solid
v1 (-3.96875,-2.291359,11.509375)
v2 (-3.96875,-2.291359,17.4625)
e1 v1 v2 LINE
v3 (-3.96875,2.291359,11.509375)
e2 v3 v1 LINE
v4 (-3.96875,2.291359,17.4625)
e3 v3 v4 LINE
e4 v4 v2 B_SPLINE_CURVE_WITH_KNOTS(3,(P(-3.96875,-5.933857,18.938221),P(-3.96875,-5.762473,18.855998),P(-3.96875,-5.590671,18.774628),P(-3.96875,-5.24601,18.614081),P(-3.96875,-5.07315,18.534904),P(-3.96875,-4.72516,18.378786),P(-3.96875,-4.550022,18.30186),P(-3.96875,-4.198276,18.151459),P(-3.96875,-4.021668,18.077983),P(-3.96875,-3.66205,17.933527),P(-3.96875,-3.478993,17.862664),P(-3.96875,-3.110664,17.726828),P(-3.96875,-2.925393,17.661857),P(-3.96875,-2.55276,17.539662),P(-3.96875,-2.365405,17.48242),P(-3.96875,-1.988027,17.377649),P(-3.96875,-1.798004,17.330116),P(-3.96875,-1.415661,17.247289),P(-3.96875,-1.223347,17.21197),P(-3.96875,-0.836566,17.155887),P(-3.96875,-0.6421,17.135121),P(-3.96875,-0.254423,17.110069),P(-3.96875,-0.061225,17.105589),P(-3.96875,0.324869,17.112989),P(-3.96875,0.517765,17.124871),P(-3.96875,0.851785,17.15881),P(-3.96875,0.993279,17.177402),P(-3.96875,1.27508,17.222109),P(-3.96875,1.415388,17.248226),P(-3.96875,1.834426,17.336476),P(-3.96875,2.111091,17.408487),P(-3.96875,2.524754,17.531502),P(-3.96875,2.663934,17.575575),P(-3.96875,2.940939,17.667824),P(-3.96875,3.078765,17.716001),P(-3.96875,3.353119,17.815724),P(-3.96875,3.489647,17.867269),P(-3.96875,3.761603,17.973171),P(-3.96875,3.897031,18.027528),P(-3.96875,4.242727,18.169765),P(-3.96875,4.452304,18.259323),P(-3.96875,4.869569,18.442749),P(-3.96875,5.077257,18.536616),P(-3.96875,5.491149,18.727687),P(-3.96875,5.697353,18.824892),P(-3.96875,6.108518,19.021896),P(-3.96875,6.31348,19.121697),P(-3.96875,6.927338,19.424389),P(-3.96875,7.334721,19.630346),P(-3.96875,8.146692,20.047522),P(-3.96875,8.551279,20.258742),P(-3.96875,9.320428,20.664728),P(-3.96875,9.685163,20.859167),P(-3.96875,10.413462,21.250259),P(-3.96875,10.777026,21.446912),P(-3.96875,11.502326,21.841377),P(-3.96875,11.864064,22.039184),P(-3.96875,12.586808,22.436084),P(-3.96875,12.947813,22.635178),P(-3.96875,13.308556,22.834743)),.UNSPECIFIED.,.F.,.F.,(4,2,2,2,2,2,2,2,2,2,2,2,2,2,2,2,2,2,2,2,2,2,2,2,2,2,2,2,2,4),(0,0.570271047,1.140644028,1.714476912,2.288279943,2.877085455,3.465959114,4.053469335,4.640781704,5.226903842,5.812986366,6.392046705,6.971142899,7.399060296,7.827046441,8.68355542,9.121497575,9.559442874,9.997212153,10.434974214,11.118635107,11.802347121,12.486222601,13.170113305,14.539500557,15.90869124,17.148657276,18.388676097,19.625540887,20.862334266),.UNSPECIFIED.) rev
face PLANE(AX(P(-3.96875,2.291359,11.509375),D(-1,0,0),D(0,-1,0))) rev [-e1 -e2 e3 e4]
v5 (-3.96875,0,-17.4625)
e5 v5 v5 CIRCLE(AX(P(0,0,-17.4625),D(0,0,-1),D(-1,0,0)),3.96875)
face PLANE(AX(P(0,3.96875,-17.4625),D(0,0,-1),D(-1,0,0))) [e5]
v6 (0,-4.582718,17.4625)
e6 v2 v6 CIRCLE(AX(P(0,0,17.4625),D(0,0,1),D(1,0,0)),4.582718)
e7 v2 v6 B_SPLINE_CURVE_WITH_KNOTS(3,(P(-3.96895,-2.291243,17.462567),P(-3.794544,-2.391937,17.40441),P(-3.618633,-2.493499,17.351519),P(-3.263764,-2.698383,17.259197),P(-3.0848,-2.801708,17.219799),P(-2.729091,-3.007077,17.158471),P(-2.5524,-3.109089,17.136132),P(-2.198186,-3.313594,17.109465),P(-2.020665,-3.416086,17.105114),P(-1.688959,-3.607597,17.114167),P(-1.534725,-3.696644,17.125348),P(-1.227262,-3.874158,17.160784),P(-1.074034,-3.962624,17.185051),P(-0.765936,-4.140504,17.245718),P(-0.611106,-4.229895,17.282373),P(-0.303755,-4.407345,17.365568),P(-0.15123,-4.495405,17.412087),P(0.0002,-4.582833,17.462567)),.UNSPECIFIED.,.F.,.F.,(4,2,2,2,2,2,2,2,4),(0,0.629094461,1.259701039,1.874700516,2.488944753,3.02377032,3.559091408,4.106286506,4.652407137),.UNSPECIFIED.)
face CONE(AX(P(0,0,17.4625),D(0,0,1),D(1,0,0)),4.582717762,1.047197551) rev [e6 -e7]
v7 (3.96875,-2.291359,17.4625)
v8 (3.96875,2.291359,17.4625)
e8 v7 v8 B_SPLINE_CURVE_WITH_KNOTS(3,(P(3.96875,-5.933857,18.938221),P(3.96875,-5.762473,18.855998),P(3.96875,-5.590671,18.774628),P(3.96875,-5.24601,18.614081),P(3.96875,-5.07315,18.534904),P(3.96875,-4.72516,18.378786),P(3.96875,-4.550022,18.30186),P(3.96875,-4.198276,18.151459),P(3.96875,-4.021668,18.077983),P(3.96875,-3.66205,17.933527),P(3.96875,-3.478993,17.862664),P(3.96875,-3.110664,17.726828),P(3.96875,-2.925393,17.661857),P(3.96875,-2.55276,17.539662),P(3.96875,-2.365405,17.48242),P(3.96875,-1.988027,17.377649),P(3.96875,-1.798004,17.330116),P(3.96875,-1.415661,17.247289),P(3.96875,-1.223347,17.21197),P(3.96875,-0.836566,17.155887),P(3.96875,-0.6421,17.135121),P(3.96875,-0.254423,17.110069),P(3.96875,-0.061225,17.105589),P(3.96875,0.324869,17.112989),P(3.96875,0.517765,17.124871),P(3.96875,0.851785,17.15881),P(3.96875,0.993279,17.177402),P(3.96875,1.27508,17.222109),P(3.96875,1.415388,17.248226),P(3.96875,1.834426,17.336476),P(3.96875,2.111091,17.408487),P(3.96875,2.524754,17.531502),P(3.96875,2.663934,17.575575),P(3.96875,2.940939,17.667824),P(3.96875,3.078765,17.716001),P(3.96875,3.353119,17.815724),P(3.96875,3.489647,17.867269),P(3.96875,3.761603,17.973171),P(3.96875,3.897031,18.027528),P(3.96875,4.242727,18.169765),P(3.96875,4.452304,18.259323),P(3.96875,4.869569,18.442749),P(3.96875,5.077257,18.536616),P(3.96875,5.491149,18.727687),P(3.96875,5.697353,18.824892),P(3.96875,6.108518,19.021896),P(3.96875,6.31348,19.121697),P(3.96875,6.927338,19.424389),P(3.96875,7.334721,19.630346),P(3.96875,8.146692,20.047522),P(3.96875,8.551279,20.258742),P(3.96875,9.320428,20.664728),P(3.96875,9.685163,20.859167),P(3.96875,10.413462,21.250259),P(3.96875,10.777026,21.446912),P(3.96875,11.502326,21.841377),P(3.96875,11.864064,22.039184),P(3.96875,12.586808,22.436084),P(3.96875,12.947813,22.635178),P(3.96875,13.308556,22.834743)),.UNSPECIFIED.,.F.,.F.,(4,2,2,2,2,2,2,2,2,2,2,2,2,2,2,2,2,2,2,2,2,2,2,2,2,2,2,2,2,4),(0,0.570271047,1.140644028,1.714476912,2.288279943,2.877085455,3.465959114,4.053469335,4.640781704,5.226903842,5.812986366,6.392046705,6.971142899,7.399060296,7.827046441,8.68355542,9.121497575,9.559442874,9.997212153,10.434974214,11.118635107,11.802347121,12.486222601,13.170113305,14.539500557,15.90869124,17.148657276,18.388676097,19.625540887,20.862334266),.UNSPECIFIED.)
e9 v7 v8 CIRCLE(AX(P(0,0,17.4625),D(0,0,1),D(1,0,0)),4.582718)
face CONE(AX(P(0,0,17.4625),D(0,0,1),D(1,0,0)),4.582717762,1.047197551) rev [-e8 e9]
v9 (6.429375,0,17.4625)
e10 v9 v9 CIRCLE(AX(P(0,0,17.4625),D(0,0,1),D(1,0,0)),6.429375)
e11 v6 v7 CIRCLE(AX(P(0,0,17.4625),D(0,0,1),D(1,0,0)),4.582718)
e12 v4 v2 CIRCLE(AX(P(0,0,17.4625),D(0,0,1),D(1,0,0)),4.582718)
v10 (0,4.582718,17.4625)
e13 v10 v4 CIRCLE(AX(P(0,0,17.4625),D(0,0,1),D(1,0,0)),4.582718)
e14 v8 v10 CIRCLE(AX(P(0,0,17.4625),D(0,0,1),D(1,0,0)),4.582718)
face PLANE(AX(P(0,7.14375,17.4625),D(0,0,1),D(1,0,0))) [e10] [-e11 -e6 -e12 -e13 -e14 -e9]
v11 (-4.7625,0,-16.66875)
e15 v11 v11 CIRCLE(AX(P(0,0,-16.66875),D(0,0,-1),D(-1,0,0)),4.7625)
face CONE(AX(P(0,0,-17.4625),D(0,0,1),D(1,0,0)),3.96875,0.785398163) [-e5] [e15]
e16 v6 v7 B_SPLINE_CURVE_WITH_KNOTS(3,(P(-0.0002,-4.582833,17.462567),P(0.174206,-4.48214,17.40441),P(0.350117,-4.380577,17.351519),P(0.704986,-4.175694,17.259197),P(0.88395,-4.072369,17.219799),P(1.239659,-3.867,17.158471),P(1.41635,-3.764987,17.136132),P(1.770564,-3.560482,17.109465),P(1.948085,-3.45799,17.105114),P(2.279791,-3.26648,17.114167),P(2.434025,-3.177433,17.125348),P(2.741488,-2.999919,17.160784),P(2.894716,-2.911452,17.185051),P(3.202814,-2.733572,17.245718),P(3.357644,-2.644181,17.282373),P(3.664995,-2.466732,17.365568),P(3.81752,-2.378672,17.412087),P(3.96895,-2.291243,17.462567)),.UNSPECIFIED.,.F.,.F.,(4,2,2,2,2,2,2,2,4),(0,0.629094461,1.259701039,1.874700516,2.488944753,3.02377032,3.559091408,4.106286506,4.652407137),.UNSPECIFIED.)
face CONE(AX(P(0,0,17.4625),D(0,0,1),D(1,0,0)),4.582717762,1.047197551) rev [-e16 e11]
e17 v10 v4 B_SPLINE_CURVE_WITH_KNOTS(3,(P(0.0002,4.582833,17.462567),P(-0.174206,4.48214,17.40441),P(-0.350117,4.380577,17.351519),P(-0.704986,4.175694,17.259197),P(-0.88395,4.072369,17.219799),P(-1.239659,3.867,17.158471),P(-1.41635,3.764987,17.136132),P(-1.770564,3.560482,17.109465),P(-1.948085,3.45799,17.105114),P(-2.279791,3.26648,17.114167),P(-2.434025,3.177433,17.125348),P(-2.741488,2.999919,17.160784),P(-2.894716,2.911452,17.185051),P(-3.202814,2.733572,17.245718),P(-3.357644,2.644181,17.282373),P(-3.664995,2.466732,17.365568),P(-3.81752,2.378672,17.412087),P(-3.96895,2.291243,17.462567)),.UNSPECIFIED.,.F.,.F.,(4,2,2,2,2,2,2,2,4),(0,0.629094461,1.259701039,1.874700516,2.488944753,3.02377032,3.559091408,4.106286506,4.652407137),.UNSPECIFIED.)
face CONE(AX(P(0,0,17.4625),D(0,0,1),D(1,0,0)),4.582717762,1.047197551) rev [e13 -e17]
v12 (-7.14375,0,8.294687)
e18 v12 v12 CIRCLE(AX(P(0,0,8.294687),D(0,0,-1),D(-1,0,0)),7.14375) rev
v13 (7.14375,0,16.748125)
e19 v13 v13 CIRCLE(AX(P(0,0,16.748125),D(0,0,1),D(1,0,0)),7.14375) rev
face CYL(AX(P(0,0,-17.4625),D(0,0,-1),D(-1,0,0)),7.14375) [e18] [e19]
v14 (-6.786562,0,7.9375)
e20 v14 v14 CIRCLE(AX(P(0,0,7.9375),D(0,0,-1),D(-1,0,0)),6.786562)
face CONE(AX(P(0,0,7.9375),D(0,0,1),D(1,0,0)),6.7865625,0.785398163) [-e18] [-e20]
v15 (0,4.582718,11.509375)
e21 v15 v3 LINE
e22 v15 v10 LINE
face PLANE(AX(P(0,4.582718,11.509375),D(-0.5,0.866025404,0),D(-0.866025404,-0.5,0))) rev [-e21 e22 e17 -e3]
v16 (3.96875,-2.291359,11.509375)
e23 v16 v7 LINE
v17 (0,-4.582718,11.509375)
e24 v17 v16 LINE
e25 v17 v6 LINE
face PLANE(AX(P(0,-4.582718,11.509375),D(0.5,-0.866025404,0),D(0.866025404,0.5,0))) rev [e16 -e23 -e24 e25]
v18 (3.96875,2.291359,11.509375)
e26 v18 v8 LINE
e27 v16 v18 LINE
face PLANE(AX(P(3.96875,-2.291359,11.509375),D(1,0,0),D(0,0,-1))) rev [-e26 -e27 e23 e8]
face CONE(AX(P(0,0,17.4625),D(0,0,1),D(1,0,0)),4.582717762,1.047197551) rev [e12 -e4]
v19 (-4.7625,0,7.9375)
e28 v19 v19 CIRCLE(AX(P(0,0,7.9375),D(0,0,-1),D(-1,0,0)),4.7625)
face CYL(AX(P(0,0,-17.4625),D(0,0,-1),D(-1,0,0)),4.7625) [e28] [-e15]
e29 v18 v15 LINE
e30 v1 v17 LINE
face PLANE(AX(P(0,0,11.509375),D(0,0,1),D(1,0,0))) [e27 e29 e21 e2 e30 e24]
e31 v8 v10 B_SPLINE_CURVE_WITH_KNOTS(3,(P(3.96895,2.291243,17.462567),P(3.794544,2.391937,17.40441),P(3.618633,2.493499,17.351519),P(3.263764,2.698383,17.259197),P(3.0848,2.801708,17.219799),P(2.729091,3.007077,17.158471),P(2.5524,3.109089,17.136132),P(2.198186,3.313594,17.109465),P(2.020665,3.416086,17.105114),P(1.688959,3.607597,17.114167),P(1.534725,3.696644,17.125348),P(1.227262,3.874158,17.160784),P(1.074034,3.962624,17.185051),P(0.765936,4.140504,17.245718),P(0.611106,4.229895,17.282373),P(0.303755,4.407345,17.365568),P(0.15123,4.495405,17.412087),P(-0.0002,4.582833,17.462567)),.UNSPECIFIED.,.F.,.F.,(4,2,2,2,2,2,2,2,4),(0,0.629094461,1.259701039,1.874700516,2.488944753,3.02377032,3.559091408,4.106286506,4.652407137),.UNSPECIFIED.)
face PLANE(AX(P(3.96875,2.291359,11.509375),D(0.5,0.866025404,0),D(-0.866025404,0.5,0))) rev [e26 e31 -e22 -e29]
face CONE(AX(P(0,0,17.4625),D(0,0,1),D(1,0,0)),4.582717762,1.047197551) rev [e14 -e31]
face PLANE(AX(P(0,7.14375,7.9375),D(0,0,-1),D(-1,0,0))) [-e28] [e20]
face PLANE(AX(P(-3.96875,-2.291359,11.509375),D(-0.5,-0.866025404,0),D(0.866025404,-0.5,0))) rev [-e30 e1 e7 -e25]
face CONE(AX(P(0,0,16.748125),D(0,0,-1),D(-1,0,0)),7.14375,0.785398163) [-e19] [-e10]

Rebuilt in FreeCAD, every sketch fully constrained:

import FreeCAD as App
import Part
import Sketcher

V = App.Vector
Q = App.Units.Quantity


def edges_at(feature, points):
    """Names of the edges that pass closest to the given points."""
    edges = feature.Shape.Edges
    near = lambda p: min(range(len(edges)), key=lambda i: edges[i].distToShape(Part.Vertex(*p))[0])
    return sorted({f"Edge{near(p) + 1}" for p in points})


def add_polygon(sketch, points):
    """Adds a closed chain of lines whose ends are joined by coincident constraints."""
    first, n = sketch.GeometryCount, len(points)
    for a, b in zip(points, points[1:] + points[:1]):
        sketch.addGeometry(Part.LineSegment(App.Vector(*a, 0), App.Vector(*b, 0)), False)
    for i in range(n):
        sketch.addConstraint(Sketcher.Constraint("Coincident", first + i, 2, first + (i + 1) % n, 1))

doc = App.newDocument("Part")
params = doc.addObject("Spreadsheet::Sheet", "Params")
for row, (alias, value) in enumerate([
    ("sketch1_width", "0.09375 in"),
    ("sketch1_width2", "0.28125 in"),
    ("sketch1_width3", "0.15625 in"),
    ("sketch1_height", "0.375 in"),
    ("revolution_angle", "360 deg"),
    ("pocket1_length", "0.234375 in"),
    ("groove_angle", "360 deg"),
    ("chamfer_size", "0.714375 mm"),
    ("chamfer2_size", "0.357187 mm"),
], start=1):
    params.set(f"A{row}", alias)
    params.set(f"B{row}", "=" + value)
    params.setAlias(f"B{row}", alias)

body = doc.addObject("PartDesign::Body", "Body")

sketch1 = body.newObject("Sketcher::SketchObject", "Sketch")
sketch1.AttachmentSupport = (doc.getObject("YZ_Plane"), [""])
sketch1.MapMode = "FlatFace"
add_polygon(sketch1, [(4, -17.5), (4.8, -16.7), (4.8, 7.9), (7.1, 7.9), (7.1, 17.5), (0, 17.5), (0, -17.5)])
sketch1.addConstraint([
    Sketcher.Constraint("Vertical", 1),
    Sketcher.Constraint("Horizontal", 2),
    Sketcher.Constraint("Vertical", 3),
    Sketcher.Constraint("Horizontal", 4),
    Sketcher.Constraint("Vertical", 5),
    Sketcher.Constraint("Horizontal", 6),
    Sketcher.Constraint("Symmetric", 4, 2, 5, 2, -1, 1),
    Sketcher.Constraint("Angle", 0, Q("45 deg")),
    Sketcher.Constraint("DistanceY", 5, 2, 1, 2, Q("1 in")),
    Sketcher.Constraint("DistanceX", 2, 1, 2, 2, Q("0.09375 in")),
    Sketcher.Constraint("DistanceX", 4, 2, 4, 1, Q("0.28125 in")),
    Sketcher.Constraint("DistanceX", 6, 1, 6, 2, Q("0.15625 in")),
    Sketcher.Constraint("DistanceY", 3, 1, 3, 2, Q("0.375 in")),
])
sketch1.setExpression("Constraints[16]", "Params.sketch1_width")
sketch1.setExpression("Constraints[17]", "Params.sketch1_width2")
sketch1.setExpression("Constraints[18]", "Params.sketch1_width3")
sketch1.setExpression("Constraints[19]", "Params.sketch1_height")
revolution = body.newObject("PartDesign::Revolution", "Revolution")
revolution.Profile = sketch1
revolution.ReferenceAxis = (sketch1, ["V_Axis"])
revolution.setExpression("Angle", "Params.revolution_angle")

sketch2 = body.newObject("Sketcher::SketchObject", "Sketch001")
sketch2.AttachmentSupport = (doc.getObject("XY_Plane"), [""])
sketch2.MapMode = "FlatFace"
sketch2.AttachmentOffset = App.Placement(V(0, 0, 0.6875 * 25.4), App.Rotation())
add_polygon(sketch2, [(0, 4.6), (-4, 2.3), (-4, -2.3), (0, -4.6), (4, -2.3), (4, 2.3)])
sketch2.addConstraint([
    Sketcher.Constraint("Vertical", 1),
    Sketcher.Constraint("Vertical", 4),
    Sketcher.Constraint("Symmetric", 0, 2, 3, 2, -1, 1),
    Sketcher.Constraint("Symmetric", 2, 2, 5, 2, -1, 1),
    Sketcher.Constraint("PointOnObject", 2, 2, -2),
    Sketcher.Constraint("Parallel", 2, 5),
    Sketcher.Constraint("Horizontal", 1, 2, 3, 2),
    Sketcher.Constraint("Angle", 0, Q("-150 deg")),
    Sketcher.Constraint("DistanceX", 0, 2, -1, 1, Q("0.15625 in")),
    Sketcher.Constraint("DistanceY", 1, 2, 1, 1, 4.582718),
])
pocket1 = body.newObject("PartDesign::Pocket", "Pocket")
pocket1.Profile = sketch2
pocket1.setExpression("Length", "Params.pocket1_length")

sketch3 = body.newObject("Sketcher::SketchObject", "Sketch002")
sketch3.AttachmentSupport = (doc.getObject("YZ_Plane"), [""])
sketch3.MapMode = "FlatFace"
add_polygon(sketch3, [(0, 17.5), (-4.6, 17.5), (0, 14.8)])
sketch3.addConstraint([
    Sketcher.Constraint("Horizontal", 0),
    Sketcher.Constraint("Vertical", 2),
    Sketcher.Constraint("PointOnObject", 1, 2, -2),
    Sketcher.Constraint("Angle", 1, Q("-30 deg")),
    Sketcher.Constraint("DistanceY", -1, 1, 0, 2, Q("0.6875 in")),
    Sketcher.Constraint("DistanceX", 0, 2, 0, 1, 4.582718),
])
groove = body.newObject("PartDesign::Groove", "Groove")
groove.Profile = sketch3
groove.ReferenceAxis = (sketch3, ["V_Axis"])
groove.setExpression("Angle", "Params.groove_angle")
doc.recompute()

chamfer = body.newObject("PartDesign::Chamfer", "Chamfer")
chamfer.Base = (groove, edges_at(groove, [(7.144, 0, 17.462)]))
chamfer.setExpression("Size", "Params.chamfer_size")
doc.recompute()

chamfer2 = body.newObject("PartDesign::Chamfer", "Chamfer001")
chamfer2.Base = (chamfer, edges_at(chamfer, [(7.144, 0, 7.938)]))
chamfer2.setExpression("Size", "Params.chamfer2_size")

doc.recompute()
